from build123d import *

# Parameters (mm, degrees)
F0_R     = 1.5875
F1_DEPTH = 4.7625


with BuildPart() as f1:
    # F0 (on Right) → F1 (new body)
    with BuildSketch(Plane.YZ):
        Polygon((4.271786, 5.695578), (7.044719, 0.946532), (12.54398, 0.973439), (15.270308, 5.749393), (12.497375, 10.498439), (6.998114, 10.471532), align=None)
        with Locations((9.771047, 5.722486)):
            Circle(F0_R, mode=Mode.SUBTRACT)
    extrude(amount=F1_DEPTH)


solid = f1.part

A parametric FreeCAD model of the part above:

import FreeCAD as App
import Part
import Sketcher
Q = App.Units.Quantity

doc = App.newDocument("Part")
params = doc.addObject("Spreadsheet::Sheet", "Params")
for row, (alias, value) in enumerate([
    ("sketch1_diameter", "0.125 in"),
    ("pad1_length", "0.1875 in"),
], start=1):
    params.set(f"A{row}", alias)
    params.set(f"B{row}", "=" + value)
    params.setAlias(f"B{row}", alias)

body = doc.addObject("PartDesign::Body", "Body")

# Sketch on YZ plane
sketch1 = body.newObject("Sketcher::SketchObject", "Sketch")
sketch1.AttachmentSupport = (doc.getObject("YZ_Plane"), [""])
sketch1.MapMode = "FlatFace"
sketch1.addGeometry([
    Part.LineSegment(App.Vector(4.3, 5.7, 0), App.Vector(7, 0.9, 0)),  # 0
    Part.LineSegment(App.Vector(7, 0.9, 0), App.Vector(12.5, 1, 0)),  # 1
    Part.LineSegment(App.Vector(12.5, 1, 0), App.Vector(15.3, 5.7, 0)),  # 2
    Part.LineSegment(App.Vector(15.3, 5.7, 0), App.Vector(12.5, 10.5, 0)),  # 3
    Part.LineSegment(App.Vector(12.5, 10.5, 0), App.Vector(7, 10.5, 0)),  # 4
    Part.LineSegment(App.Vector(7, 10.5, 0), App.Vector(4.3, 5.7, 0)),  # 5
    Part.Circle(App.Vector(9.8, 5.7, 0), App.Vector(0, 0, 1), 1.6),  # 6
], False)
sketch1.addConstraint([
    Sketcher.Constraint("Coincident", 0, 2, 1, 1),
    Sketcher.Constraint("Coincident", 1, 2, 2, 1),
    Sketcher.Constraint("Coincident", 2, 2, 3, 1),
    Sketcher.Constraint("Coincident", 3, 2, 4, 1),
    Sketcher.Constraint("Coincident", 4, 2, 5, 1),
    Sketcher.Constraint("Coincident", 5, 2, 0, 1),
    Sketcher.Constraint("Parallel", 0, 3),
    Sketcher.Constraint("Parallel", 1, 4),
    Sketcher.Constraint("Parallel", 2, 5),
    Sketcher.Constraint("Equal", 0, 1),
    Sketcher.Constraint("Equal", 1, 2),
    Sketcher.Constraint("Equal", 2, 3),
    Sketcher.Constraint("Diameter", 6, Q("0.125 in")),
    Sketcher.Constraint("DistanceY", 1, 2, 3, 2, Q("0.375 in")),
    Sketcher.Constraint("DistanceX", -1, 1, 0, 2, 7.044719),
    Sketcher.Constraint("DistanceX", -1, 1, 1, 2, 12.54398),
    Sketcher.Constraint("DistanceY", -1, 1, 1, 2, 0.973439),
    Sketcher.Constraint("DistanceY", -1, 1, 5, 2, 5.695578),
    Sketcher.Constraint("DistanceX", 6, 3, 2, 2, 5.499261),
    Sketcher.Constraint("DistanceX", 1, 2, 2, 2, 2.726328),
    Sketcher.Constraint("DistanceY", -1, 1, 6, 3, 5.722486),
])
sketch1.setExpression("Constraints[12]", "Params.sketch1_diameter")
pad1 = body.newObject("PartDesign::Pad", "Pad")
pad1.Profile = sketch1
pad1.setExpression("Length", "Params.pad1_length")

doc.recompute()
